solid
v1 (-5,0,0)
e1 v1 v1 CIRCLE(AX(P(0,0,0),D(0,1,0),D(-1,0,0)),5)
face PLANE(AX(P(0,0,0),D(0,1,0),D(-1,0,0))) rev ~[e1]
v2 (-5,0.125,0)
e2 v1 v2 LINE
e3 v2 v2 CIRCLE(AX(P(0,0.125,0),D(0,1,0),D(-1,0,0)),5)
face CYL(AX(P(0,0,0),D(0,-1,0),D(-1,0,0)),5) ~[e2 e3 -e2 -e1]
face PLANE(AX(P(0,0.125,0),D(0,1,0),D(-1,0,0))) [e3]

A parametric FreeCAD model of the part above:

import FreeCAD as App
import Part
import Sketcher

doc = App.newDocument("Part")
body = doc.addObject("PartDesign::Body", "Body")

sketch1 = body.newObject("Sketcher::SketchObject", "Sketch")
sketch1.AttachmentSupport = (doc.getObject("XZ_Plane"), [""])
sketch1.MapMode = "FlatFace"
sketch1.addGeometry(Part.Circle(App.Vector(0, 0, 0), App.Vector(0, 0, 1), 5), False)
sketch1.addConstraint(Sketcher.Constraint("Coincident", 0, 3, -1, 1))
sketch1.addConstraint(Sketcher.Constraint("Diameter", 0, 10.0))
pad1 = body.newObject("PartDesign::Pad", "Pad")
pad1.Profile = sketch1
pad1.Length = 0.125
pad1.Reversed = True

doc.recompute()
